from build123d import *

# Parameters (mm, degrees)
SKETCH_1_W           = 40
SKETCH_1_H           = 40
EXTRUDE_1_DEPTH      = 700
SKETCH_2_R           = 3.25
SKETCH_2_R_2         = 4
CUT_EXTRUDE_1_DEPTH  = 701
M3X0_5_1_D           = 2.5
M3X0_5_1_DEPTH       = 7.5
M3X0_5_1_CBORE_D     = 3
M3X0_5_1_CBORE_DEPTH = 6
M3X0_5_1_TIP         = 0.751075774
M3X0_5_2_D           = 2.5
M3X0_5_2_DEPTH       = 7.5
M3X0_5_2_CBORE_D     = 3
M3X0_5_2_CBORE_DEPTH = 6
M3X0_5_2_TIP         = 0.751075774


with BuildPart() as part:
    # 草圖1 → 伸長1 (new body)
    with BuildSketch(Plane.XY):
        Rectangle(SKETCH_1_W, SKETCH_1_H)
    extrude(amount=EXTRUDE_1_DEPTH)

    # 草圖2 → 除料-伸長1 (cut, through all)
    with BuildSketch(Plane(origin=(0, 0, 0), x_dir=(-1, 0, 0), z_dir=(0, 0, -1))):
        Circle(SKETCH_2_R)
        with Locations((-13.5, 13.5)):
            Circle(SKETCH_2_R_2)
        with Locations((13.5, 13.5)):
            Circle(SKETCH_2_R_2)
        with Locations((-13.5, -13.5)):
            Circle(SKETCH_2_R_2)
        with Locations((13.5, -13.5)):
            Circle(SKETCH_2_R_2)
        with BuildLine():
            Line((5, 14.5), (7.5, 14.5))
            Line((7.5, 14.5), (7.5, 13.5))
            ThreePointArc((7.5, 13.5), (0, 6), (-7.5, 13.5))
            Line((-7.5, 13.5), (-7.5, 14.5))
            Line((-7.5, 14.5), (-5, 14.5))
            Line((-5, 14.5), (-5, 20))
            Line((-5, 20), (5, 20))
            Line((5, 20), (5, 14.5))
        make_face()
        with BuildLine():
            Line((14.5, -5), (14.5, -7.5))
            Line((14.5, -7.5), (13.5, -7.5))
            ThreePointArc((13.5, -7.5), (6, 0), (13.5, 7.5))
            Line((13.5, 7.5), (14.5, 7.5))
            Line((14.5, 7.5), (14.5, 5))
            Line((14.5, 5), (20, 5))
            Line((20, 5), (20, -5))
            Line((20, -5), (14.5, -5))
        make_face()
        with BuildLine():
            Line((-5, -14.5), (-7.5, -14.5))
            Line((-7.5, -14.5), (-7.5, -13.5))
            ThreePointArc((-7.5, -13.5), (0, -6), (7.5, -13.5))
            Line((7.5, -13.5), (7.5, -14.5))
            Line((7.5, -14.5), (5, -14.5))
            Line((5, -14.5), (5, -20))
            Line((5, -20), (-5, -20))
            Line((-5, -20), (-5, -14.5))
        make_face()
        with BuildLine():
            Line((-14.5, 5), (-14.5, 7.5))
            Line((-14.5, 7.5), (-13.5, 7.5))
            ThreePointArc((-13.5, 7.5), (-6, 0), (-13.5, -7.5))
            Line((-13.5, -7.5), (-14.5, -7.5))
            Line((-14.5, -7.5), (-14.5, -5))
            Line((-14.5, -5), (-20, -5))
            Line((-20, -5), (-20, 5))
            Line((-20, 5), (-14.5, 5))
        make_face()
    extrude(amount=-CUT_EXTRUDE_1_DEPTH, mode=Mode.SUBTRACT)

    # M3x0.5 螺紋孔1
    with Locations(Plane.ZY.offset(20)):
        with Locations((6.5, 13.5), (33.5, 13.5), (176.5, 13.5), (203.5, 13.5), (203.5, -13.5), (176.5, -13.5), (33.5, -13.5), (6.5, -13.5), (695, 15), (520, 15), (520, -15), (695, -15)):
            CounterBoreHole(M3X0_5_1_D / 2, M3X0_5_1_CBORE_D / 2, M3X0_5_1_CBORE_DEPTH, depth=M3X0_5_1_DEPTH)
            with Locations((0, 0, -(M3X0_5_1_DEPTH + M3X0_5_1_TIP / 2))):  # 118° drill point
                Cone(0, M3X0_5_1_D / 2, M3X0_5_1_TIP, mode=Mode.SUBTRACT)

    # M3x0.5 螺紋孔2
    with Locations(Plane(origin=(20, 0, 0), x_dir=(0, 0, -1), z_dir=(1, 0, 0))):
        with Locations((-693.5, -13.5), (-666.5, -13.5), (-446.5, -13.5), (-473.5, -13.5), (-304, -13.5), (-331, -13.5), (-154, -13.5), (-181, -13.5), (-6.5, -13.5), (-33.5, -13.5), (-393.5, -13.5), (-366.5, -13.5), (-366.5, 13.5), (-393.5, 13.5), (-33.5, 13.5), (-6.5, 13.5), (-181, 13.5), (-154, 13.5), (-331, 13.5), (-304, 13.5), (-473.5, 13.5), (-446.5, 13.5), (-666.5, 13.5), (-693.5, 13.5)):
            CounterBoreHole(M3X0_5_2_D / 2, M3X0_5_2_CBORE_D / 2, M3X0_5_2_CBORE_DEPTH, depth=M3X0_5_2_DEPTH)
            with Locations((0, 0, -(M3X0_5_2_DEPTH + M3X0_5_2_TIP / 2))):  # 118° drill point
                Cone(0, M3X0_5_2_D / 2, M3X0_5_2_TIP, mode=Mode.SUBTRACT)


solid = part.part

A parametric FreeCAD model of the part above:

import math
import FreeCAD as App
import Part
import Sketcher
Q = App.Units.Quantity

doc = App.newDocument("Part")
body = doc.addObject("PartDesign::Body", "Body")

sketch1 = body.newObject("Sketcher::SketchObject", "Sketch")
sketch1.AttachmentSupport = (doc.getObject("XY_Plane"), [""])
sketch1.MapMode = "FlatFace"
sketch1.addGeometry([
    Part.LineSegment(App.Vector(-20, 20, 0), App.Vector(-20, -20, 0)),
    Part.LineSegment(App.Vector(-20, -20, 0), App.Vector(20, -20, 0)),
    Part.LineSegment(App.Vector(20, -20, 0), App.Vector(20, 20, 0)),
    Part.LineSegment(App.Vector(20, 20, 0), App.Vector(-20, 20, 0)),
], False)
sketch1.addConstraint([
    Sketcher.Constraint("Coincident", 0, 2, 1, 1),
    Sketcher.Constraint("Coincident", 1, 2, 2, 1),
    Sketcher.Constraint("Coincident", 2, 2, 3, 1),
    Sketcher.Constraint("Coincident", 3, 2, 0, 1),
    Sketcher.Constraint("Vertical", 0),
    Sketcher.Constraint("Horizontal", 1),
    Sketcher.Constraint("Vertical", 2),
    Sketcher.Constraint("Horizontal", 3),
    Sketcher.Constraint("Symmetric", 0, 2, 2, 2, -1, 1),
    Sketcher.Constraint("Equal", 3, 0),
    Sketcher.Constraint("DistanceX", 1, 1, 1, 2, Q("40 mm")),
])
pad1 = body.newObject("PartDesign::Pad", "Pad")
pad1.Profile = sketch1
pad1.Length = 700

sketch2 = body.newObject("Sketcher::SketchObject", "Sketch001")
sketch2.AttachmentSupport = (doc.getObject("XY_Plane"), [""])
sketch2.MapMode = "FlatFace"
sketch2.addGeometry([
    Part.Circle(App.Vector(0, 0, 0), App.Vector(0, 0, 1), 3.25),
    Part.Circle(App.Vector(13.5, 13.5, 0), App.Vector(0, 0, 1), 4),
    Part.Circle(App.Vector(-13.5, 13.5, 0), App.Vector(0, 0, 1), 4),
    Part.Circle(App.Vector(13.5, -13.5, 0), App.Vector(0, 0, 1), 4),
    Part.Circle(App.Vector(-13.5, -13.5, 0), App.Vector(0, 0, 1), 4),
    Part.LineSegment(App.Vector(-7.5, 14.5, 0), App.Vector(-5, 14.5, 0)),
    Part.LineSegment(App.Vector(-5, 14.5, 0), App.Vector(-5, 20, 0)),
    Part.LineSegment(App.Vector(-5, 20, 0), App.Vector(5, 20, 0)),
    Part.LineSegment(App.Vector(5, 20, 0), App.Vector(5, 14.5, 0)),
    Part.LineSegment(App.Vector(5, 14.5, 0), App.Vector(7.5, 14.5, 0)),
    Part.LineSegment(App.Vector(7.5, 14.5, 0), App.Vector(7.5, 13.5, 0)),
    Part.ArcOfCircle(Part.Circle(App.Vector(0, 13.5, 0), App.Vector(0, 0, 1), 7.5), math.radians(180), math.radians(360)),
    Part.LineSegment(App.Vector(-7.5, 13.5, 0), App.Vector(-7.5, 14.5, 0)),
    Part.LineSegment(App.Vector(-14.5, -7.5, 0), App.Vector(-14.5, -5, 0)),
    Part.LineSegment(App.Vector(-14.5, -5, 0), App.Vector(-20, -5, 0)),
    Part.LineSegment(App.Vector(-20, -5, 0), App.Vector(-20, 5, 0)),
    Part.LineSegment(App.Vector(-20, 5, 0), App.Vector(-14.5, 5, 0)),
    Part.LineSegment(App.Vector(-14.5, 5, 0), App.Vector(-14.5, 7.5, 0)),
    Part.LineSegment(App.Vector(-14.5, 7.5, 0), App.Vector(-13.5, 7.5, 0)),
    Part.ArcOfCircle(Part.Circle(App.Vector(-13.5, 0, 0), App.Vector(0, 0, 1), 7.5), math.radians(-90), math.radians(90)),
    Part.LineSegment(App.Vector(-13.5, -7.5, 0), App.Vector(-14.5, -7.5, 0)),
    Part.LineSegment(App.Vector(7.5, -14.5, 0), App.Vector(5, -14.5, 0)),
    Part.LineSegment(App.Vector(5, -14.5, 0), App.Vector(5, -20, 0)),
    Part.LineSegment(App.Vector(5, -20, 0), App.Vector(-5, -20, 0)),
    Part.LineSegment(App.Vector(-5, -20, 0), App.Vector(-5, -14.5, 0)),
    Part.LineSegment(App.Vector(-5, -14.5, 0), App.Vector(-7.5, -14.5, 0)),
    Part.LineSegment(App.Vector(-7.5, -14.5, 0), App.Vector(-7.5, -13.5, 0)),
    Part.ArcOfCircle(Part.Circle(App.Vector(0, -13.5, 0), App.Vector(0, 0, 1), 7.5), math.radians(0), math.radians(180)),
    Part.LineSegment(App.Vector(7.5, -13.5, 0), App.Vector(7.5, -14.5, 0)),
    Part.LineSegment(App.Vector(14.5, 7.5, 0), App.Vector(14.5, 5, 0)),
    Part.LineSegment(App.Vector(14.5, 5, 0), App.Vector(20, 5, 0)),
    Part.LineSegment(App.Vector(20, 5, 0), App.Vector(20, -5, 0)),
    Part.LineSegment(App.Vector(20, -5, 0), App.Vector(14.5, -5, 0)),
    Part.LineSegment(App.Vector(14.5, -5, 0), App.Vector(14.5, -7.5, 0)),
    Part.LineSegment(App.Vector(14.5, -7.5, 0), App.Vector(13.5, -7.5, 0)),
    Part.ArcOfCircle(Part.Circle(App.Vector(13.5, 0, 0), App.Vector(0, 0, 1), 7.5), math.radians(90), math.radians(270)),
    Part.LineSegment(App.Vector(13.5, 7.5, 0), App.Vector(14.5, 7.5, 0)),
], False)
sketch2.addConstraint([
    Sketcher.Constraint("Coincident", 5, 2, 6, 1),
    Sketcher.Constraint("Coincident", 6, 2, 7, 1),
    Sketcher.Constraint("Coincident", 7, 2, 8, 1),
    Sketcher.Constraint("Coincident", 8, 2, 9, 1),
    Sketcher.Constraint("Coincident", 9, 2, 10, 1),
    Sketcher.Constraint("Tangent", 10, 2, 11, 2),
    Sketcher.Constraint("Tangent", 11, 1, 12, 1),
    Sketcher.Constraint("Coincident", 12, 2, 5, 1),
    Sketcher.Constraint("Coincident", 13, 2, 14, 1),
    Sketcher.Constraint("Coincident", 14, 2, 15, 1),
    Sketcher.Constraint("Coincident", 15, 2, 16, 1),
    Sketcher.Constraint("Coincident", 16, 2, 17, 1),
    Sketcher.Constraint("Coincident", 17, 2, 18, 1),
    Sketcher.Constraint("Tangent", 18, 2, 19, 2),
    Sketcher.Constraint("Tangent", 19, 1, 20, 1),
    Sketcher.Constraint("Coincident", 20, 2, 13, 1),
    Sketcher.Constraint("Coincident", 21, 2, 22, 1),
    Sketcher.Constraint("Coincident", 22, 2, 23, 1),
    Sketcher.Constraint("Coincident", 23, 2, 24, 1),
    Sketcher.Constraint("Coincident", 24, 2, 25, 1),
    Sketcher.Constraint("Coincident", 25, 2, 26, 1),
    Sketcher.Constraint("Tangent", 26, 2, 27, 2),
    Sketcher.Constraint("Tangent", 27, 1, 28, 1),
    Sketcher.Constraint("Coincident", 28, 2, 21, 1),
    Sketcher.Constraint("Coincident", 29, 2, 30, 1),
    Sketcher.Constraint("Coincident", 30, 2, 31, 1),
    Sketcher.Constraint("Coincident", 31, 2, 32, 1),
    Sketcher.Constraint("Coincident", 32, 2, 33, 1),
    Sketcher.Constraint("Coincident", 33, 2, 34, 1),
    Sketcher.Constraint("Tangent", 34, 2, 35, 2),
    Sketcher.Constraint("Tangent", 35, 1, 36, 1),
    Sketcher.Constraint("Coincident", 36, 2, 29, 1),
    Sketcher.Constraint("Horizontal", 5),
    Sketcher.Constraint("Vertical", 6),
    Sketcher.Constraint("Horizontal", 7),
    Sketcher.Constraint("Vertical", 8),
    Sketcher.Constraint("Horizontal", 9),
    Sketcher.Constraint("Vertical", 10),
    Sketcher.Constraint("Vertical", 12),
    Sketcher.Constraint("Vertical", 13),
    Sketcher.Constraint("Horizontal", 14),
    Sketcher.Constraint("Vertical", 15),
    Sketcher.Constraint("Horizontal", 16),
    Sketcher.Constraint("Vertical", 17),
    Sketcher.Constraint("Horizontal", 18),
    Sketcher.Constraint("Horizontal", 20),
    Sketcher.Constraint("Horizontal", 21),
    Sketcher.Constraint("Vertical", 22),
    Sketcher.Constraint("Horizontal", 23),
    Sketcher.Constraint("Vertical", 24),
    Sketcher.Constraint("Horizontal", 25),
    Sketcher.Constraint("Vertical", 26),
    Sketcher.Constraint("Vertical", 28),
    Sketcher.Constraint("Vertical", 29),
    Sketcher.Constraint("Horizontal", 30),
    Sketcher.Constraint("Vertical", 31),
    Sketcher.Constraint("Horizontal", 32),
    Sketcher.Constraint("Vertical", 33),
    Sketcher.Constraint("Horizontal", 34),
    Sketcher.Constraint("Horizontal", 36),
    Sketcher.Constraint("Coincident", 0, 3, -1, 1),
    Sketcher.Constraint("Equal", 1, 2),
    Sketcher.Constraint("Equal", 2, 3),
    Sketcher.Constraint("Equal", 3, 4),
    Sketcher.Constraint("Equal", 11, 19),
    Sketcher.Constraint("Equal", 19, 27),
    Sketcher.Constraint("Equal", 27, 35),
    Sketcher.Constraint("Symmetric", 2, 3, 3, 3, -1, 1),
    Sketcher.Constraint("Symmetric", 1, 3, 4, 3, -1, 1),
    Sketcher.Constraint("Symmetric", 11, 3, 27, 3, -1, 1),
    Sketcher.Constraint("Symmetric", 19, 3, 35, 3, -1, 1),
    Sketcher.Constraint("Symmetric", 5, 2, 21, 2, -1, 1),
    Sketcher.Constraint("Symmetric", 7, 2, 23, 2, -1, 1),
    Sketcher.Constraint("Symmetric", 13, 2, 29, 2, -1, 1),
    Sketcher.Constraint("Symmetric", 15, 2, 31, 2, -1, 1),
    Sketcher.Constraint("Symmetric", 1, 3, 2, 3, -2),
    Sketcher.Constraint("Symmetric", 5, 2, 8, 2, -2),
    Sketcher.Constraint("Symmetric", 25, 2, 28, 2, -2),
    Sketcher.Constraint("Symmetric", 16, 2, 29, 2, -2),
    Sketcher.Constraint("Symmetric", 20, 2, 33, 2, -2),
    Sketcher.Constraint("Horizontal", 2, 3, 11, 3),
    Sketcher.Constraint("Vertical", 4, 3, 19, 3),
    Sketcher.Constraint("Equal", 32, 6),
    Sketcher.Constraint("Equal", 36, 10),
    Sketcher.Constraint("Equal", 25, 13),
    Sketcher.Constraint("Diameter", 1, Q("8 mm")),
    Sketcher.Constraint("Diameter", 0, Q("6.5 mm")),
    Sketcher.Constraint("Radius", 11, Q("7.5 mm")),
    Sketcher.Constraint("DistanceX", 7, 1, 7, 2, Q("10 mm")),
    Sketcher.Constraint("DistanceX", 18, 1, 18, 2, Q("1 mm")),
    Sketcher.Constraint("DistanceX", 14, 2, 14, 1, Q("5.5 mm")),
    Sketcher.Constraint("DistanceY", -1, 1, 6, 2, Q("20 mm")),
    Sketcher.Constraint("DistanceX", 14, 2, -1, 1, Q("20 mm")),
])
pocket1 = body.newObject("PartDesign::Pocket", "Pocket")
pocket1.Profile = sketch2
pocket1.Type = "ThroughAll"
pocket1.Reversed = True

sketch3 = body.newObject("Sketcher::SketchObject", "Sketch002")
sketch3.AttachmentSupport = (doc.getObject("YZ_Plane"), [""])
sketch3.MapMode = "FlatFace"
sketch3.AttachmentOffset = App.Placement(App.Vector(0, 0, -20), App.Rotation())
sketch3.addGeometry([
    Part.Circle(App.Vector(13.5, 6.5, 0), App.Vector(0, 0, 1), 1.25),
    Part.Circle(App.Vector(13.5, 33.5, 0), App.Vector(0, 0, 1), 1.25),
    Part.Circle(App.Vector(13.5, 176.5, 0), App.Vector(0, 0, 1), 1.25),
    Part.Circle(App.Vector(13.5, 203.5, 0), App.Vector(0, 0, 1), 1.25),
    Part.Circle(App.Vector(-13.5, 203.5, 0), App.Vector(0, 0, 1), 1.25),
    Part.Circle(App.Vector(-13.5, 176.5, 0), App.Vector(0, 0, 1), 1.25),
    Part.Circle(App.Vector(-13.5, 33.5, 0), App.Vector(0, 0, 1), 1.25),
    Part.Circle(App.Vector(-13.5, 6.5, 0), App.Vector(0, 0, 1), 1.25),
    Part.Circle(App.Vector(15, 695, 0), App.Vector(0, 0, 1), 1.25),
    Part.Circle(App.Vector(15, 520, 0), App.Vector(0, 0, 1), 1.25),
    Part.Circle(App.Vector(-15, 520, 0), App.Vector(0, 0, 1), 1.25),
    Part.Circle(App.Vector(-15, 695, 0), App.Vector(0, 0, 1), 1.25),
], False)
sketch3.addConstraint([
    Sketcher.Constraint("Equal", 0, 1),
    Sketcher.Constraint("Equal", 1, 2),
    Sketcher.Constraint("Equal", 2, 3),
    Sketcher.Constraint("Equal", 3, 4),
    Sketcher.Constraint("Equal", 4, 5),
    Sketcher.Constraint("Equal", 5, 6),
    Sketcher.Constraint("Equal", 6, 7),
    Sketcher.Constraint("Equal", 7, 8),
    Sketcher.Constraint("Equal", 8, 9),
    Sketcher.Constraint("Equal", 9, 10),
    Sketcher.Constraint("Equal", 10, 11),
    Sketcher.Constraint("Symmetric", 3, 3, 4, 3, -2),
    Sketcher.Constraint("Symmetric", 2, 3, 5, 3, -2),
    Sketcher.Constraint("Symmetric", 1, 3, 6, 3, -2),
    Sketcher.Constraint("Symmetric", 0, 3, 7, 3, -2),
    Sketcher.Constraint("Symmetric", 9, 3, 10, 3, -2),
    Sketcher.Constraint("Symmetric", 8, 3, 11, 3, -2),
    Sketcher.Constraint("Vertical", 0, 3, 1, 3),
    Sketcher.Constraint("Vertical", 1, 3, 2, 3),
    Sketcher.Constraint("Vertical", 2, 3, 3, 3),
    Sketcher.Constraint("Vertical", 8, 3, 9, 3),
    Sketcher.Constraint("Diameter", 0, Q("2.5 mm")),
    Sketcher.Constraint("DistanceX", -1, 1, 8, 3, Q("15 mm")),
    Sketcher.Constraint("DistanceY", -1, 1, 8, 3, Q("695 mm")),
    Sketcher.Constraint("DistanceY", -1, 1, 9, 3, Q("520 mm")),
    Sketcher.Constraint("DistanceY", 0, 3, 1, 3, Q("27 mm")),
    Sketcher.Constraint("DistanceY", 1, 3, 2, 3, Q("143 mm")),
    Sketcher.Constraint("DistanceY", 2, 3, 3, 3, Q("27 mm")),
    Sketcher.Constraint("DistanceX", 4, 3, 3, 3, Q("27 mm")),
    Sketcher.Constraint("DistanceY", -1, 1, 0, 3, Q("6.5 mm")),
])
doc.recompute()
hole = body.newObject("PartDesign::Hole", "Hole")
hole.Profile = sketch3
hole.ThreadType = "None"
hole.Diameter = 2.5
hole.DepthType = "Dimension"
hole.Depth = 7.5
hole.DrillPoint = "Angled"
hole.DrillPointAngle = 118
hole.HoleCutType = "Counterbore"
hole.HoleCutDiameter = 3
hole.HoleCutDepth = 6
hole.Reversed = True

sketch4 = body.newObject("Sketcher::SketchObject", "Sketch003")
sketch4.AttachmentSupport = (doc.getObject("YZ_Plane"), [""])
sketch4.MapMode = "FlatFace"
sketch4.AttachmentOffset = App.Placement(App.Vector(0, 0, 20), App.Rotation())
sketch4.addGeometry([
    Part.Circle(App.Vector(-13.5, 693.5, 0), App.Vector(0, 0, 1), 1.25),
    Part.Circle(App.Vector(-13.5, 666.5, 0), App.Vector(0, 0, 1), 1.25),
    Part.Circle(App.Vector(-13.5, 446.5, 0), App.Vector(0, 0, 1), 1.25),
    Part.Circle(App.Vector(-13.5, 473.5, 0), App.Vector(0, 0, 1), 1.25),
    Part.Circle(App.Vector(-13.5, 304, 0), App.Vector(0, 0, 1), 1.25),
    Part.Circle(App.Vector(-13.5, 331, 0), App.Vector(0, 0, 1), 1.25),
    Part.Circle(App.Vector(-13.5, 154, 0), App.Vector(0, 0, 1), 1.25),
    Part.Circle(App.Vector(-13.5, 181, 0), App.Vector(0, 0, 1), 1.25),
    Part.Circle(App.Vector(-13.5, 6.5, 0), App.Vector(0, 0, 1), 1.25),
    Part.Circle(App.Vector(-13.5, 33.5, 0), App.Vector(0, 0, 1), 1.25),
    Part.Circle(App.Vector(-13.5, 393.5, 0), App.Vector(0, 0, 1), 1.25),
    Part.Circle(App.Vector(-13.5, 366.5, 0), App.Vector(0, 0, 1), 1.25),
    Part.Circle(App.Vector(13.5, 366.5, 0), App.Vector(0, 0, 1), 1.25),
    Part.Circle(App.Vector(13.5, 393.5, 0), App.Vector(0, 0, 1), 1.25),
    Part.Circle(App.Vector(13.5, 33.5, 0), App.Vector(0, 0, 1), 1.25),
    Part.Circle(App.Vector(13.5, 6.5, 0), App.Vector(0, 0, 1), 1.25),
    Part.Circle(App.Vector(13.5, 181, 0), App.Vector(0, 0, 1), 1.25),
    Part.Circle(App.Vector(13.5, 154, 0), App.Vector(0, 0, 1), 1.25),
    Part.Circle(App.Vector(13.5, 331, 0), App.Vector(0, 0, 1), 1.25),
    Part.Circle(App.Vector(13.5, 304, 0), App.Vector(0, 0, 1), 1.25),
    Part.Circle(App.Vector(13.5, 473.5, 0), App.Vector(0, 0, 1), 1.25),
    Part.Circle(App.Vector(13.5, 446.5, 0), App.Vector(0, 0, 1), 1.25),
    Part.Circle(App.Vector(13.5, 666.5, 0), App.Vector(0, 0, 1), 1.25),
    Part.Circle(App.Vector(13.5, 693.5, 0), App.Vector(0, 0, 1), 1.25),
], False)
sketch4.addConstraint([
    Sketcher.Constraint("Equal", 0, 1),
    Sketcher.Constraint("Equal", 1, 2),
    Sketcher.Constraint("Equal", 2, 3),
    Sketcher.Constraint("Equal", 3, 4),
    Sketcher.Constraint("Equal", 4, 5),
    Sketcher.Constraint("Equal", 5, 6),
    Sketcher.Constraint("Equal", 6, 7),
    Sketcher.Constraint("Equal", 7, 8),
    Sketcher.Constraint("Equal", 8, 9),
    Sketcher.Constraint("Equal", 9, 10),
    Sketcher.Constraint("Equal", 10, 11),
    Sketcher.Constraint("Equal", 11, 12),
    Sketcher.Constraint("Equal", 12, 13),
    Sketcher.Constraint("Equal", 13, 14),
    Sketcher.Constraint("Equal", 14, 15),
    Sketcher.Constraint("Equal", 15, 16),
    Sketcher.Constraint("Equal", 16, 17),
    Sketcher.Constraint("Equal", 17, 18),
    Sketcher.Constraint("Equal", 18, 19),
    Sketcher.Constraint("Equal", 19, 20),
    Sketcher.Constraint("Equal", 20, 21),
    Sketcher.Constraint("Equal", 21, 22),
    Sketcher.Constraint("Equal", 22, 23),
    Sketcher.Constraint("Symmetric", 11, 3, 12, 3, -2),
    Sketcher.Constraint("Symmetric", 10, 3, 13, 3, -2),
    Sketcher.Constraint("Symmetric", 9, 3, 14, 3, -2),
    Sketcher.Constraint("Symmetric", 8, 3, 15, 3, -2),
    Sketcher.Constraint("Symmetric", 7, 3, 16, 3, -2),
    Sketcher.Constraint("Symmetric", 6, 3, 17, 3, -2),
    Sketcher.Constraint("Symmetric", 5, 3, 18, 3, -2),
    Sketcher.Constraint("Symmetric", 4, 3, 19, 3, -2),
    Sketcher.Constraint("Symmetric", 3, 3, 20, 3, -2),
    Sketcher.Constraint("Symmetric", 2, 3, 21, 3, -2),
    Sketcher.Constraint("Symmetric", 1, 3, 22, 3, -2),
    Sketcher.Constraint("Symmetric", 0, 3, 23, 3, -2),
    Sketcher.Constraint("Vertical", 0, 3, 1, 3),
    Sketcher.Constraint("Vertical", 1, 3, 2, 3),
    Sketcher.Constraint("Vertical", 2, 3, 3, 3),
    Sketcher.Constraint("Vertical", 3, 3, 4, 3),
    Sketcher.Constraint("Vertical", 4, 3, 5, 3),
    Sketcher.Constraint("Vertical", 5, 3, 6, 3),
    Sketcher.Constraint("Vertical", 6, 3, 7, 3),
    Sketcher.Constraint("Vertical", 7, 3, 8, 3),
    Sketcher.Constraint("Vertical", 8, 3, 9, 3),
    Sketcher.Constraint("Vertical", 9, 3, 10, 3),
    Sketcher.Constraint("Vertical", 10, 3, 11, 3),
    Sketcher.Constraint("Diameter", 0, Q("2.5 mm")),
    Sketcher.Constraint("DistanceY", -1, 1, 4, 3, Q("304 mm")),
    Sketcher.Constraint("DistanceY", -1, 1, 5, 3, Q("331 mm")),
    Sketcher.Constraint("DistanceY", -1, 1, 6, 3, Q("154 mm")),
    Sketcher.Constraint("DistanceY", -1, 1, 7, 3, Q("181 mm")),
    Sketcher.Constraint("DistanceY", 1, 3, 0, 3, Q("27 mm")),
    Sketcher.Constraint("DistanceY", 2, 3, 1, 3, Q("220 mm")),
    Sketcher.Constraint("DistanceY", 2, 3, 3, 3, Q("27 mm")),
    Sketcher.Constraint("DistanceY", 8, 3, 2, 3, Q("440 mm")),
    Sketcher.Constraint("DistanceY", 8, 3, 9, 3, Q("27 mm")),
    Sketcher.Constraint("DistanceY", 10, 3, 2, 3, Q("53 mm")),
    Sketcher.Constraint("DistanceY", 11, 3, 10, 3, Q("27 mm")),
    Sketcher.Constraint("DistanceX", 11, 3, 12, 3, Q("27 mm")),
    Sketcher.Constraint("DistanceY", -1, 1, 0, 3, Q("693.5 mm")),
])
doc.recompute()
hole2 = body.newObject("PartDesign::Hole", "Hole001")
hole2.Profile = sketch4
hole2.ThreadType = "None"
hole2.Diameter = 2.5
hole2.DepthType = "Dimension"
hole2.Depth = 7.5
hole2.DrillPoint = "Angled"
hole2.DrillPointAngle = 118
hole2.HoleCutType = "Counterbore"
hole2.HoleCutDiameter = 3
hole2.HoleCutDepth = 6

doc.recompute()
